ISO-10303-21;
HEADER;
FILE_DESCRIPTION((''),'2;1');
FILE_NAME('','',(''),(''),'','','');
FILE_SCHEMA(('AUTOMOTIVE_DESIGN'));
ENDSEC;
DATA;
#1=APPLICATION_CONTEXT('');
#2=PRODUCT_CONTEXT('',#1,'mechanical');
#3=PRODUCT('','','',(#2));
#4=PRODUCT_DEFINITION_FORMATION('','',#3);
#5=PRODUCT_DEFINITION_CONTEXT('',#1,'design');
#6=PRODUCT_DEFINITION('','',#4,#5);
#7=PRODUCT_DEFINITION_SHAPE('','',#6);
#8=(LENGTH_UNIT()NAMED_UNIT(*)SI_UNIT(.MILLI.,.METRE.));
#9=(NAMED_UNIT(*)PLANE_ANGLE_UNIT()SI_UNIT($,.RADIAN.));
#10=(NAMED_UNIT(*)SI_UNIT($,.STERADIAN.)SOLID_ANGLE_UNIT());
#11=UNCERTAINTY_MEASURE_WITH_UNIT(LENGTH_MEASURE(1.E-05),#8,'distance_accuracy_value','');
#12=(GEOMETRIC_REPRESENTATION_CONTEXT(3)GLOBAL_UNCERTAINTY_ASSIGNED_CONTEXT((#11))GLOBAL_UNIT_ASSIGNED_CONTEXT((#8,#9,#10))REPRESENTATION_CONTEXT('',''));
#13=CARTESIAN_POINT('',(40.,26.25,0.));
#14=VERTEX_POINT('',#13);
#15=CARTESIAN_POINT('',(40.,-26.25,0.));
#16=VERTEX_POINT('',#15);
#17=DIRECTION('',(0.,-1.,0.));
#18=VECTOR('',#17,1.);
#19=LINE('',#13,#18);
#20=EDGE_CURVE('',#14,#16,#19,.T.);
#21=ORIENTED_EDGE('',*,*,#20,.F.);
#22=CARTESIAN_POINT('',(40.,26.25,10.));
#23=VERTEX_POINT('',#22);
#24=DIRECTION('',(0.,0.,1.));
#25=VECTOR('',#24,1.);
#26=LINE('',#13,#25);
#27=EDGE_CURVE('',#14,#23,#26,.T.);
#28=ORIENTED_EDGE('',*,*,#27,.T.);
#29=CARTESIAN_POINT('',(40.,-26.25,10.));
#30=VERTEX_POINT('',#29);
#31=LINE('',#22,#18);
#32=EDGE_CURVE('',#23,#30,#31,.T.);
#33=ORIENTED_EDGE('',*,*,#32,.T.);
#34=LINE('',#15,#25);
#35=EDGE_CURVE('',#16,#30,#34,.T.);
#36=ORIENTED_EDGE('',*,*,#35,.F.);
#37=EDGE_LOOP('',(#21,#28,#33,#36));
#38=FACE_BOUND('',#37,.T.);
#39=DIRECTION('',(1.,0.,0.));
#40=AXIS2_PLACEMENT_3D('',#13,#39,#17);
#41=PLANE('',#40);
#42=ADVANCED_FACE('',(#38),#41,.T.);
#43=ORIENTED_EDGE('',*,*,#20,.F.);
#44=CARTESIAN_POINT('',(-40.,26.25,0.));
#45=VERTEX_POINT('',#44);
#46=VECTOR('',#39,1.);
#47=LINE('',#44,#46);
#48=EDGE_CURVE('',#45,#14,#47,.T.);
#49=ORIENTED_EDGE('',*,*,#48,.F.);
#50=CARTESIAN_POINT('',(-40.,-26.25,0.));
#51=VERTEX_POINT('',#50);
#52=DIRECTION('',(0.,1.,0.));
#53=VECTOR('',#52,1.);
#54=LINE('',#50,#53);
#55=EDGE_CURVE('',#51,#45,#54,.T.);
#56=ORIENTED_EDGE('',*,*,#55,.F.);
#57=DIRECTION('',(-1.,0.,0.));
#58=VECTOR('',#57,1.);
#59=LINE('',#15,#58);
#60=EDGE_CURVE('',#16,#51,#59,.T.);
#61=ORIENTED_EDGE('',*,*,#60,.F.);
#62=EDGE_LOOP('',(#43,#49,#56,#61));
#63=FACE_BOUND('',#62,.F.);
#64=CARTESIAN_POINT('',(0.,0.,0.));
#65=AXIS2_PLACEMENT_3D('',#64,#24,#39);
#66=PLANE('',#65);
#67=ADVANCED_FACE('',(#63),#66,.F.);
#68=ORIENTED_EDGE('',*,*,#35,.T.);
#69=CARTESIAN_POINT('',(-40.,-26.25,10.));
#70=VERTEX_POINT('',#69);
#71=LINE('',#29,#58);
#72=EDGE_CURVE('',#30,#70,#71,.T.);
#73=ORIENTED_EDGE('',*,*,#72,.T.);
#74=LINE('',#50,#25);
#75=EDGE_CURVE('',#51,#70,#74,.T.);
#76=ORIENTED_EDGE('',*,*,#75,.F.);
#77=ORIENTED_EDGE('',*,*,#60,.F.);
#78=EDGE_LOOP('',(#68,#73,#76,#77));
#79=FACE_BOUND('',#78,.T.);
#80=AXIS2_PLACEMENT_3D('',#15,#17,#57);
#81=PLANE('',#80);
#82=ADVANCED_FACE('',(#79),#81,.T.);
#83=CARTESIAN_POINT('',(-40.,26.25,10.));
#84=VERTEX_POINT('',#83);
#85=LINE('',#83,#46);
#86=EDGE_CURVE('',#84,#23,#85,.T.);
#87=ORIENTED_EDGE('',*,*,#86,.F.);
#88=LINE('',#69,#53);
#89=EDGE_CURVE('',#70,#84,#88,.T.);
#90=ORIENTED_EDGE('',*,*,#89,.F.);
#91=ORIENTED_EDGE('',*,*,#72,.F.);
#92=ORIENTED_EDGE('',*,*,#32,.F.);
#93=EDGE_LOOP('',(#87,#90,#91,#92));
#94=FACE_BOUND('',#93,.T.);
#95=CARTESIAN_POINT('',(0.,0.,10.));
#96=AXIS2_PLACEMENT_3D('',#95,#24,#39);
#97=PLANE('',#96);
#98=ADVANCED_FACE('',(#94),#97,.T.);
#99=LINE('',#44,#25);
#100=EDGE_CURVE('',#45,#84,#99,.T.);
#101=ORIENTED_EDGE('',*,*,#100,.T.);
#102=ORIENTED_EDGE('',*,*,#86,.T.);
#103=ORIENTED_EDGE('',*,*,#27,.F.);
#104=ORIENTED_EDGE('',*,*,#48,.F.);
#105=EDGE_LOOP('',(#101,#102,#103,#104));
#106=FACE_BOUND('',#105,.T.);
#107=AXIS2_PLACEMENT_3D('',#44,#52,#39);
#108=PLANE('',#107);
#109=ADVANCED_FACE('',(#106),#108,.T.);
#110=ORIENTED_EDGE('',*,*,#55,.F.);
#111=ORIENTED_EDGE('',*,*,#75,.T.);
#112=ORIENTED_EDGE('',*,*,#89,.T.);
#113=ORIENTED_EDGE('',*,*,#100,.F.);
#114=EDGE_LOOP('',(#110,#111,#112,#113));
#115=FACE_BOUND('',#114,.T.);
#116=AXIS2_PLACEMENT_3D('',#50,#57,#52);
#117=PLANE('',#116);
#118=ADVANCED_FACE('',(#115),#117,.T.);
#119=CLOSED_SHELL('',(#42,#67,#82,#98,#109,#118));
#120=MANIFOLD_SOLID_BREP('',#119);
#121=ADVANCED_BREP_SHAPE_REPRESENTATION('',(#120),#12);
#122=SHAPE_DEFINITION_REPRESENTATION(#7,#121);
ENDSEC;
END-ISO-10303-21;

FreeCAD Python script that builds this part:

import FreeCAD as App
import Part
import Sketcher

V = App.Vector
Q = App.Units.Quantity


def add_polygon(sketch, points):
    """Adds a closed chain of lines whose ends are joined by coincident constraints."""
    first, n = sketch.GeometryCount, len(points)
    for a, b in zip(points, points[1:] + points[:1]):
        sketch.addGeometry(Part.LineSegment(App.Vector(*a, 0), App.Vector(*b, 0)), False)
    for i in range(n):
        sketch.addConstraint(Sketcher.Constraint("Coincident", first + i, 2, first + (i + 1) % n, 1))

doc = App.newDocument("Part")
body = doc.addObject("PartDesign::Body", "Body")

sketch1 = body.newObject("Sketcher::SketchObject", "Sketch")
sketch1.AttachmentSupport = (doc.getObject("XY_Plane"), [""])
sketch1.MapMode = "FlatFace"
add_polygon(sketch1, [(-40, -26), (40, -26), (40, 26), (-40, 26)])
sketch1.addConstraint(Sketcher.Constraint("Horizontal", 0))
sketch1.addConstraint(Sketcher.Constraint("Vertical", 1))
sketch1.addConstraint(Sketcher.Constraint("Horizontal", 2))
sketch1.addConstraint(Sketcher.Constraint("Vertical", 3))
sketch1.addConstraint(Sketcher.Constraint("Symmetric", 0, 2, 2, 2, -1, 1))
sketch1.addConstraint(Sketcher.Constraint("DistanceX", 0, 1, 0, 2, Q("80 mm")))
sketch1.addConstraint(Sketcher.Constraint("DistanceY", 1, 1, 1, 2, Q("52.5 mm")))
pad1 = body.newObject("PartDesign::Pad", "Pad")
pad1.Profile = sketch1
pad1.Length = 10

doc.recompute()
